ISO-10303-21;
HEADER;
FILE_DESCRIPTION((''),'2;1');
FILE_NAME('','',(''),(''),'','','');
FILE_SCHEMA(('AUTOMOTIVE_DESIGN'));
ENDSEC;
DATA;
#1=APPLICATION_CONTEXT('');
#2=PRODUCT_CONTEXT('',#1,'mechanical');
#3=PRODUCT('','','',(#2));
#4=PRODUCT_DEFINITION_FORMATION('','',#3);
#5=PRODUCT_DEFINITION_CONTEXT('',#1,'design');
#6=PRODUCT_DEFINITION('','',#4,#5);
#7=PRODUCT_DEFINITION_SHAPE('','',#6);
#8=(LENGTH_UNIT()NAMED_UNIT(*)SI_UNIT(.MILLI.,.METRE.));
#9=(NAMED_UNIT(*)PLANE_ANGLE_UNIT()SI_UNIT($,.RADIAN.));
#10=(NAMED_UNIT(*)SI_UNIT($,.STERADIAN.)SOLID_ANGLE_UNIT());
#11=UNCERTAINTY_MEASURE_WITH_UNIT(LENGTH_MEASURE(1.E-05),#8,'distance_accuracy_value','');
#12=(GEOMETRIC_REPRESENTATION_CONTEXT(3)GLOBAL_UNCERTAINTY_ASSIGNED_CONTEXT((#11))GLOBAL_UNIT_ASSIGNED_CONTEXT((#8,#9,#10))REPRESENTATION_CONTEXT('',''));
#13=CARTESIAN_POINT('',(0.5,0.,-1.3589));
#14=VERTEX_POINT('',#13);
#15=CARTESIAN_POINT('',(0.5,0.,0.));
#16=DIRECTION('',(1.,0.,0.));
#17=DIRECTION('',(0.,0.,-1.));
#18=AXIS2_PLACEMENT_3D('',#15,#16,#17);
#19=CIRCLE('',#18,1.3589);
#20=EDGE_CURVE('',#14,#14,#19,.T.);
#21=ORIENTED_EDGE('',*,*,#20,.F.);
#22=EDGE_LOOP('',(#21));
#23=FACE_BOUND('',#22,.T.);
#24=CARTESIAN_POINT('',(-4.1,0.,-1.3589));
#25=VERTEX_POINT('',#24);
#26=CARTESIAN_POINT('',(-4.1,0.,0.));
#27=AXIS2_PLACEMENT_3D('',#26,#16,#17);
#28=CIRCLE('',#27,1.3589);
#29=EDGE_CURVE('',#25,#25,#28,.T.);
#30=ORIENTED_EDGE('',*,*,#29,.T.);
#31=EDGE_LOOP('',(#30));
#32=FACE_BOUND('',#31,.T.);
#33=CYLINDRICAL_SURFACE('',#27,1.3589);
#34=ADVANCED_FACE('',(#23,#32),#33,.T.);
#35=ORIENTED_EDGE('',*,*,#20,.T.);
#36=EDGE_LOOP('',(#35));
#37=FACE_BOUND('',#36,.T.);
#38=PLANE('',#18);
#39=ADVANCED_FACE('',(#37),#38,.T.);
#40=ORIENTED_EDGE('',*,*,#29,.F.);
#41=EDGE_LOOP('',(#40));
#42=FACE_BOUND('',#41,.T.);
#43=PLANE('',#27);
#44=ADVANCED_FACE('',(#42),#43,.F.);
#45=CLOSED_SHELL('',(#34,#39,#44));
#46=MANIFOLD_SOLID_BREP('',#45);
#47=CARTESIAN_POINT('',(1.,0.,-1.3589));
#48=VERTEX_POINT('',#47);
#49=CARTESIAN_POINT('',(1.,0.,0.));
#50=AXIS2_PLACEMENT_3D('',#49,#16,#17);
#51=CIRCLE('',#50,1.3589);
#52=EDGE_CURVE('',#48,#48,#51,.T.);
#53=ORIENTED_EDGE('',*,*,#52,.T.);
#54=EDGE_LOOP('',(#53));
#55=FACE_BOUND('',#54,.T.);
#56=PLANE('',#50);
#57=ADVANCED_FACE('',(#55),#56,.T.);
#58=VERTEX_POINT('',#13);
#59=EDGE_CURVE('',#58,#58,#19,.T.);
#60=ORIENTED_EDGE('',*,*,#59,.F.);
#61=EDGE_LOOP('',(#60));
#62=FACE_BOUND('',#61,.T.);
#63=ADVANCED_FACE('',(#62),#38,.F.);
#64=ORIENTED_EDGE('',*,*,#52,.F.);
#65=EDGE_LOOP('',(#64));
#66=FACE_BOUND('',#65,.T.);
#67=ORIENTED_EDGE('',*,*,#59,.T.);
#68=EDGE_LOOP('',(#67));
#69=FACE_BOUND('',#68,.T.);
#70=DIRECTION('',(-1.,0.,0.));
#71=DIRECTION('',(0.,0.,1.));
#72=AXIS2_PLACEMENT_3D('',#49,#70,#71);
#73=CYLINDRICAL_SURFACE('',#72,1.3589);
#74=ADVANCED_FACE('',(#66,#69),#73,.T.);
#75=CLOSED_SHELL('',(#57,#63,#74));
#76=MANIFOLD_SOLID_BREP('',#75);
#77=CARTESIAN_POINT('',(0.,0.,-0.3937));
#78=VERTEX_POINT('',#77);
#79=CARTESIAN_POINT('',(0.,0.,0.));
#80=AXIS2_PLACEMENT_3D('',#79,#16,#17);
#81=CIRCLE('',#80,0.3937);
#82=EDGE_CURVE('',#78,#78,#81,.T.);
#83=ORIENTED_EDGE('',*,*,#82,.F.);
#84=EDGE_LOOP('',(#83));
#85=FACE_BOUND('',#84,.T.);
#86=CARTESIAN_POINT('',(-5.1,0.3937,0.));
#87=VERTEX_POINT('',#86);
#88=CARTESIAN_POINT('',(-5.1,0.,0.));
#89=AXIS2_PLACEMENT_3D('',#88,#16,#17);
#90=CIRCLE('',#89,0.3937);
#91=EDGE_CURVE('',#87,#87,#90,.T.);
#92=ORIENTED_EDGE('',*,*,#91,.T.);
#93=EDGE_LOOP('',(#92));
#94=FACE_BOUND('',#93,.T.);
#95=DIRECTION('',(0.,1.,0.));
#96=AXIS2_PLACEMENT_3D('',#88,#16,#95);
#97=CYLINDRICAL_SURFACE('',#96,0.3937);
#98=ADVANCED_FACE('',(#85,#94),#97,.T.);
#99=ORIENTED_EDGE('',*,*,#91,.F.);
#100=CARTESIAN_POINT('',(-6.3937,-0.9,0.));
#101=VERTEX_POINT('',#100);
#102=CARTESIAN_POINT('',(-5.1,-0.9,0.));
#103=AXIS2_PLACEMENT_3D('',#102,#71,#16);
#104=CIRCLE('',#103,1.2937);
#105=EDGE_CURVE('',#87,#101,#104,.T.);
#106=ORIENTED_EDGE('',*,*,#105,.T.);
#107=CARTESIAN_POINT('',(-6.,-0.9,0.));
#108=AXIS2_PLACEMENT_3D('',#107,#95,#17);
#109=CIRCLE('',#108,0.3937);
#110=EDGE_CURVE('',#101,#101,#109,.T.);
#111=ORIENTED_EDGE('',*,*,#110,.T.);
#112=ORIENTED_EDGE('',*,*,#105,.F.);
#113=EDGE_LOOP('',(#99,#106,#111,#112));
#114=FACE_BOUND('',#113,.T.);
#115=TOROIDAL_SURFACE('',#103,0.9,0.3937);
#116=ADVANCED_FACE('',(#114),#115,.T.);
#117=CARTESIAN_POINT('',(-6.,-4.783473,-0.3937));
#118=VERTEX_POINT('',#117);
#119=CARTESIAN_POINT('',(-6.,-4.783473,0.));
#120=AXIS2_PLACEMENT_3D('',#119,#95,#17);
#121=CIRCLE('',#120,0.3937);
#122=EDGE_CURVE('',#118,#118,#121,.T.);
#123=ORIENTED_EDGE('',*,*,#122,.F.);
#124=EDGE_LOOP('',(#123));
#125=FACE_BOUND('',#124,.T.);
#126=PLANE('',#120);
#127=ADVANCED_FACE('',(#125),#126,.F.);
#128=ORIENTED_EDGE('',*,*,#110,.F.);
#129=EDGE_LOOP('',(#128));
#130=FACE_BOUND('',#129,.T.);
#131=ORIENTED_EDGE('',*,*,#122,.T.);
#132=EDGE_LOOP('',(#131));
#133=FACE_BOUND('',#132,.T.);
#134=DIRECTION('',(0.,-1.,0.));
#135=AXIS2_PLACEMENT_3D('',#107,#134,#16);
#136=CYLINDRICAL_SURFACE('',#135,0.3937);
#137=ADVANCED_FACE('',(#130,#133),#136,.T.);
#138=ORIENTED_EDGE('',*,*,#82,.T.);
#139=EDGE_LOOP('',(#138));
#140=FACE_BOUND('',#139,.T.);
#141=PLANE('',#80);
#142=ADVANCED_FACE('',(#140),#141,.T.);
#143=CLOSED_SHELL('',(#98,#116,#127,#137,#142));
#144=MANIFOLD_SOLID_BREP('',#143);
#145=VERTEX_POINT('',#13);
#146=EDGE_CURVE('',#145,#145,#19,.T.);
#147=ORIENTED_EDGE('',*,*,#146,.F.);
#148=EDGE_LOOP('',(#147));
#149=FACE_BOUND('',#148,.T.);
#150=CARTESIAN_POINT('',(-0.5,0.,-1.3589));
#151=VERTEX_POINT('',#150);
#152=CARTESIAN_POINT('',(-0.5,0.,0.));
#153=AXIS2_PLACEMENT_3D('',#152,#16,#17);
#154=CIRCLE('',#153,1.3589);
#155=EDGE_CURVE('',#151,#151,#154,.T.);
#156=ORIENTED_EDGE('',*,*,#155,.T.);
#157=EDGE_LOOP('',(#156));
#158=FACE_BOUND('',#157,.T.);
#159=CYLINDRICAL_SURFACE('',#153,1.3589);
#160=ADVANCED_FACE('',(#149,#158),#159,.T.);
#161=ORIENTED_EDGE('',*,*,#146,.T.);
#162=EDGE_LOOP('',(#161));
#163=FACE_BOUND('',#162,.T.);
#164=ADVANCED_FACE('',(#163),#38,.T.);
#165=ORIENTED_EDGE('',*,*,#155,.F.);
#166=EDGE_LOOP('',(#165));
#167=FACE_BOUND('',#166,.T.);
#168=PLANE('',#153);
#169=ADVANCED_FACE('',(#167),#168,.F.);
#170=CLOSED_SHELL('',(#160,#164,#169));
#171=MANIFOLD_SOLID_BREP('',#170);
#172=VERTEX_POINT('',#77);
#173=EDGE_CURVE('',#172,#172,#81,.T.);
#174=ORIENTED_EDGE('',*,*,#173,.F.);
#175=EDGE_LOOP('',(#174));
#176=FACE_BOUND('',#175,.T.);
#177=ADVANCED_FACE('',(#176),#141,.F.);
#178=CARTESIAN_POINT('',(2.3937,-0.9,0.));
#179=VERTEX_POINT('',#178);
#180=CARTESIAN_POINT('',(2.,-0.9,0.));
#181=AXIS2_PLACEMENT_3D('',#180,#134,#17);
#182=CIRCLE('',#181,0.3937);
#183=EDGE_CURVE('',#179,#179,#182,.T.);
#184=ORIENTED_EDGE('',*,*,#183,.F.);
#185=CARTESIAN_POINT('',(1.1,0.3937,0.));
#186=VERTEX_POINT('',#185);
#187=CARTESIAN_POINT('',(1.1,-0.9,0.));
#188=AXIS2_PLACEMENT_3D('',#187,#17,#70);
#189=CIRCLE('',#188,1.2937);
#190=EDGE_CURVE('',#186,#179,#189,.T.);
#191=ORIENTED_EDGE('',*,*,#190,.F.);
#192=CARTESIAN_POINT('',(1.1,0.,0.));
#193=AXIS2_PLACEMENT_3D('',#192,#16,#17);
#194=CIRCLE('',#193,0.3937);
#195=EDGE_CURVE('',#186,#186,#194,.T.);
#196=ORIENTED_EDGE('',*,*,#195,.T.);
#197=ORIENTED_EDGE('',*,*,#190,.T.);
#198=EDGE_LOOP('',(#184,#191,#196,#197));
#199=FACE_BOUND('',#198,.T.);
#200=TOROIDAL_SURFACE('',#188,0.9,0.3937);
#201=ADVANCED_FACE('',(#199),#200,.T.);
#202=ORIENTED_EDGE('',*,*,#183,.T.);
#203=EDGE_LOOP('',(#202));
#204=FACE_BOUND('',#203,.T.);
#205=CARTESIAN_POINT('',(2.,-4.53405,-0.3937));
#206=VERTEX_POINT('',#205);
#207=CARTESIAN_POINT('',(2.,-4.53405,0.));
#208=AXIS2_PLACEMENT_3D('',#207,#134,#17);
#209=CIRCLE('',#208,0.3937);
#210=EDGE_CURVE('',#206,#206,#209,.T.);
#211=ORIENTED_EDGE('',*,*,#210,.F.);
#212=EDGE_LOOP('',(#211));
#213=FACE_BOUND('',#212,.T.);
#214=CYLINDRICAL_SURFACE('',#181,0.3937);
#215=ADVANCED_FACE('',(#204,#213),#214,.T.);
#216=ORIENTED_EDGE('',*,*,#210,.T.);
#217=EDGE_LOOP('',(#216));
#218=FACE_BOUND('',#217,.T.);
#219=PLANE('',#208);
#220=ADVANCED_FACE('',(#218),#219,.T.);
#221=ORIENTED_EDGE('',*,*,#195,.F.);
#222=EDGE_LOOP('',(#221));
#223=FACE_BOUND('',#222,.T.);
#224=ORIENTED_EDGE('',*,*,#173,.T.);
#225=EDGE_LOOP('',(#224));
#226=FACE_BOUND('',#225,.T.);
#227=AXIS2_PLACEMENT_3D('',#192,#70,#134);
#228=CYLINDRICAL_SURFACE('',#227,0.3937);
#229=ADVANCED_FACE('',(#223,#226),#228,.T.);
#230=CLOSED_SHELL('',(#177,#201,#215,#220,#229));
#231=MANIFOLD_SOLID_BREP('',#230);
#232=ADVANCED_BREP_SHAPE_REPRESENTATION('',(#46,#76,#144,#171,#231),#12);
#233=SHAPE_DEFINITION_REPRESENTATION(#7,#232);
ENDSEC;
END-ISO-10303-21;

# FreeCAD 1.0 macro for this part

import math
import FreeCAD as App
import Part
import Sketcher

doc = App.newDocument("Part")
body = doc.addObject("PartDesign::Body", "Body")

# Sketch on YZ plane
sketch1 = body.newObject("Sketcher::SketchObject", "Sketch")
sketch1.AttachmentSupport = (doc.getObject("YZ_Plane"), [""])
sketch1.MapMode = "FlatFace"
sketch1.addGeometry(Part.Circle(App.Vector(0, 0, 0), App.Vector(0, 0, 1), 1.4), False)
sketch1.addConstraint(Sketcher.Constraint("Coincident", 0, 3, -1, 1))
sketch1.addConstraint(Sketcher.Constraint("Diameter", 0, 2.7178))
pad1 = body.newObject("PartDesign::Pad", "Pad")
pad1.Profile = sketch1
pad1.Type = "TwoLengths"
pad1.Length = 0.5
pad1.Length2 = 0.5
body2 = doc.addObject("PartDesign::Body", "Body001")

# Sketch on YZ plane
sketch2 = body2.newObject("Sketcher::SketchObject", "Sketch001")
sketch2.AttachmentSupport = (doc.getObject("YZ_Plane001"), [""])
sketch2.MapMode = "FlatFace"
sketch2.AttachmentOffset = App.Placement(App.Vector(0, 0, 0.5), App.Rotation())
sketch2.addGeometry(Part.Circle(App.Vector(0, 0, 0), App.Vector(0, 0, 1), 1.4), False)
sketch2.addConstraint(Sketcher.Constraint("Coincident", 0, 3, -1, 1))
sketch2.addConstraint(Sketcher.Constraint("Diameter", 0, 2.7178))
pad2 = body2.newObject("PartDesign::Pad", "Pad001")
pad2.Profile = sketch2
pad2.Length = 0.5
body3 = doc.addObject("PartDesign::Body", "Body002")

# Sketch on YZ plane
sketch3 = body3.newObject("Sketcher::SketchObject", "Sketch002")
sketch3.AttachmentSupport = (doc.getObject("YZ_Plane002"), [""])
sketch3.MapMode = "FlatFace"
sketch3.AttachmentOffset = App.Placement(App.Vector(0, 0, 0.5), App.Rotation())
sketch3.addGeometry(Part.Circle(App.Vector(0, 0, 0), App.Vector(0, 0, 1), 1.4), False)
sketch3.addConstraint(Sketcher.Constraint("Coincident", 0, 3, -1, 1))
sketch3.addConstraint(Sketcher.Constraint("Diameter", 0, 2.7178))
pad3 = body3.newObject("PartDesign::Pad", "Pad002")
pad3.Profile = sketch3
pad3.Length = 4.6
pad3.Reversed = True
body4 = doc.addObject("PartDesign::Body", "Body003")

# Sketch on YZ plane
sketch4 = body4.newObject("Sketcher::SketchObject", "Sketch003")
sketch4.AttachmentSupport = (doc.getObject("YZ_Plane003"), [""])
sketch4.MapMode = "FlatFace"
sketch4.addGeometry(Part.Circle(App.Vector(0, 0, 0), App.Vector(0, 0, 1), 0.39), False)
sketch4.addConstraint(Sketcher.Constraint("Coincident", 0, 3, -1, 1))
sketch4.addConstraint(Sketcher.Constraint("Diameter", 0, 0.7874))

# Sketch on XY plane
sketch5 = body4.newObject("Sketcher::SketchObject", "Sketch004")
sketch5.AttachmentSupport = (doc.getObject("XY_Plane003"), [""])
sketch5.MapMode = "FlatFace"
sketch5.addGeometry(Part.LineSegment(App.Vector(0, 0, 0), App.Vector(1.1, 0, 0)), False)
sketch5.addGeometry(Part.ArcOfCircle(Part.Circle(App.Vector(1.1, -0.9, 0), App.Vector(0, 0, 1), 0.9), math.radians(0), math.radians(90)), False)
sketch5.addGeometry(Part.LineSegment(App.Vector(2, -0.9, 0), App.Vector(2, -4.5, 0)), False)
sketch5.addConstraint(Sketcher.Constraint("Tangent", 0, 2, 1, 2))
sketch5.addConstraint(Sketcher.Constraint("Tangent", 1, 1, 2, 1))
sketch5.addConstraint(Sketcher.Constraint("Horizontal", 0))
sketch5.addConstraint(Sketcher.Constraint("Vertical", 2))
sketch5.addConstraint(Sketcher.Constraint("Coincident", 0, 1, -1, 1))
sketch5.addConstraint(Sketcher.Constraint("Radius", 1, 0.9))
sketch5.addConstraint(Sketcher.Constraint("DistanceX", 0, 1, 0, 2, 1.1))
sketch5.addConstraint(Sketcher.Constraint("DistanceY", 2, 2, 2, 1, 3.63405))
doc.recompute()

additivepipe = body4.newObject("PartDesign::AdditivePipe", "AdditivePipe")
additivepipe.Profile = sketch4
additivepipe.Spine = (sketch5, ["Edge1", "Edge2", "Edge3"])
body5 = doc.addObject("PartDesign::Body", "Body004")

# Sketch on YZ plane
sketch6 = body5.newObject("Sketcher::SketchObject", "Sketch005")
sketch6.AttachmentSupport = (doc.getObject("YZ_Plane004"), [""])
sketch6.MapMode = "FlatFace"
sketch6.addGeometry(Part.Circle(App.Vector(0, 0, 0), App.Vector(0, 0, 1), 0.39), False)
sketch6.addConstraint(Sketcher.Constraint("Coincident", 0, 3, -1, 1))
sketch6.addConstraint(Sketcher.Constraint("Diameter", 0, 0.7874))

# Sketch on XY plane
sketch7 = body5.newObject("Sketcher::SketchObject", "Sketch006")
sketch7.AttachmentSupport = (doc.getObject("XY_Plane004"), [""])
sketch7.MapMode = "FlatFace"
sketch7.addGeometry(Part.LineSegment(App.Vector(0, 0, 0), App.Vector(-5.1, 0, 0)), False)
sketch7.addGeometry(Part.ArcOfCircle(Part.Circle(App.Vector(-5.1, -0.9, 0), App.Vector(0, 0, 1), 0.9), math.radians(90), math.radians(180)), False)
sketch7.addGeometry(Part.LineSegment(App.Vector(-6, -0.9, 0), App.Vector(-6, -4.8, 0)), False)
sketch7.addConstraint(Sketcher.Constraint("Tangent", 0, 2, 1, 1))
sketch7.addConstraint(Sketcher.Constraint("Tangent", 1, 2, 2, 1))
sketch7.addConstraint(Sketcher.Constraint("Horizontal", 0))
sketch7.addConstraint(Sketcher.Constraint("Vertical", 2))
sketch7.addConstraint(Sketcher.Constraint("Coincident", 0, 1, -1, 1))
sketch7.addConstraint(Sketcher.Constraint("Radius", 1, 0.9))
sketch7.addConstraint(Sketcher.Constraint("DistanceX", 0, 2, 0, 1, 5.1))
sketch7.addConstraint(Sketcher.Constraint("DistanceY", 2, 2, 2, 1, 3.883473))
doc.recompute()

additivepipe2 = body5.newObject("PartDesign::AdditivePipe", "AdditivePipe001")
additivepipe2.Profile = sketch6
additivepipe2.Spine = (sketch7, ["Edge1", "Edge2", "Edge3"])

doc.recompute()
